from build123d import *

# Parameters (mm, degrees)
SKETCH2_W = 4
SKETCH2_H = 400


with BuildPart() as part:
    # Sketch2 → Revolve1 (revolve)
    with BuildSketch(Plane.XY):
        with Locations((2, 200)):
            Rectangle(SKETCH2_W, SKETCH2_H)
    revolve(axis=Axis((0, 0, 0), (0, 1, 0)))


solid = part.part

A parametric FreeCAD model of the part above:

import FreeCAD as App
import Part
import Sketcher

V = App.Vector
Q = App.Units.Quantity

doc = App.newDocument("Part")
params = doc.addObject("Spreadsheet::Sheet", "Params")
for row, (alias, value) in enumerate([
    ("sketch1_width", "4 mm"),
    ("sketch1_height", "400 mm"),
    ("revolution_angle", "360 deg"),
], start=1):
    params.set(f"A{row}", alias)
    params.set(f"B{row}", "=" + value)
    params.setAlias(f"B{row}", alias)

body = doc.addObject("PartDesign::Body", "Body")

# Sketch on XY plane
sketch1 = doc.addObject("Sketcher::SketchObject", "Sketch")
body.addObject(sketch1)
sketch1.AttachmentSupport = (doc.XY_Plane, [""])
sketch1.MapMode = "FlatFace"
sketch1.addGeometry(Part.LineSegment(V(0, 400, 0), V(0, 0, 0)), False)
sketch1.addGeometry(Part.LineSegment(V(0, 0, 0), V(4, 0, 0)), False)
sketch1.addGeometry(Part.LineSegment(V(4, 0, 0), V(4, 400, 0)), False)
sketch1.addGeometry(Part.LineSegment(V(4, 400, 0), V(0, 400, 0)), False)
sketch1.addConstraint(Sketcher.Constraint("Coincident", 0, 2, 1, 1))
sketch1.addConstraint(Sketcher.Constraint("Coincident", 1, 2, 2, 1))
sketch1.addConstraint(Sketcher.Constraint("Coincident", 2, 2, 3, 1))
sketch1.addConstraint(Sketcher.Constraint("Coincident", 3, 2, 0, 1))
sketch1.addConstraint(Sketcher.Constraint("Vertical", 0))
sketch1.addConstraint(Sketcher.Constraint("Horizontal", 1))
sketch1.addConstraint(Sketcher.Constraint("Vertical", 2))
sketch1.addConstraint(Sketcher.Constraint("Horizontal", 3))
sketch1.addConstraint(Sketcher.Constraint("Coincident", 0, 2, -1, 1))
sketch1.addConstraint(Sketcher.Constraint("DistanceX", 1, 1, 1, 2, Q("4 mm")))
sketch1.addConstraint(Sketcher.Constraint("DistanceY", 0, 2, 0, 1, Q("400 mm")))
sketch1.setExpression("Constraints[9]", "Params.sketch1_width")
sketch1.setExpression("Constraints[10]", "Params.sketch1_height")
revolution = doc.addObject("PartDesign::Revolution", "Revolution")
body.addObject(revolution)
revolution.Profile = sketch1
revolution.ReferenceAxis = (sketch1, ["V_Axis"])
revolution.setExpression("Angle", "Params.revolution_angle")

doc.recompute()
